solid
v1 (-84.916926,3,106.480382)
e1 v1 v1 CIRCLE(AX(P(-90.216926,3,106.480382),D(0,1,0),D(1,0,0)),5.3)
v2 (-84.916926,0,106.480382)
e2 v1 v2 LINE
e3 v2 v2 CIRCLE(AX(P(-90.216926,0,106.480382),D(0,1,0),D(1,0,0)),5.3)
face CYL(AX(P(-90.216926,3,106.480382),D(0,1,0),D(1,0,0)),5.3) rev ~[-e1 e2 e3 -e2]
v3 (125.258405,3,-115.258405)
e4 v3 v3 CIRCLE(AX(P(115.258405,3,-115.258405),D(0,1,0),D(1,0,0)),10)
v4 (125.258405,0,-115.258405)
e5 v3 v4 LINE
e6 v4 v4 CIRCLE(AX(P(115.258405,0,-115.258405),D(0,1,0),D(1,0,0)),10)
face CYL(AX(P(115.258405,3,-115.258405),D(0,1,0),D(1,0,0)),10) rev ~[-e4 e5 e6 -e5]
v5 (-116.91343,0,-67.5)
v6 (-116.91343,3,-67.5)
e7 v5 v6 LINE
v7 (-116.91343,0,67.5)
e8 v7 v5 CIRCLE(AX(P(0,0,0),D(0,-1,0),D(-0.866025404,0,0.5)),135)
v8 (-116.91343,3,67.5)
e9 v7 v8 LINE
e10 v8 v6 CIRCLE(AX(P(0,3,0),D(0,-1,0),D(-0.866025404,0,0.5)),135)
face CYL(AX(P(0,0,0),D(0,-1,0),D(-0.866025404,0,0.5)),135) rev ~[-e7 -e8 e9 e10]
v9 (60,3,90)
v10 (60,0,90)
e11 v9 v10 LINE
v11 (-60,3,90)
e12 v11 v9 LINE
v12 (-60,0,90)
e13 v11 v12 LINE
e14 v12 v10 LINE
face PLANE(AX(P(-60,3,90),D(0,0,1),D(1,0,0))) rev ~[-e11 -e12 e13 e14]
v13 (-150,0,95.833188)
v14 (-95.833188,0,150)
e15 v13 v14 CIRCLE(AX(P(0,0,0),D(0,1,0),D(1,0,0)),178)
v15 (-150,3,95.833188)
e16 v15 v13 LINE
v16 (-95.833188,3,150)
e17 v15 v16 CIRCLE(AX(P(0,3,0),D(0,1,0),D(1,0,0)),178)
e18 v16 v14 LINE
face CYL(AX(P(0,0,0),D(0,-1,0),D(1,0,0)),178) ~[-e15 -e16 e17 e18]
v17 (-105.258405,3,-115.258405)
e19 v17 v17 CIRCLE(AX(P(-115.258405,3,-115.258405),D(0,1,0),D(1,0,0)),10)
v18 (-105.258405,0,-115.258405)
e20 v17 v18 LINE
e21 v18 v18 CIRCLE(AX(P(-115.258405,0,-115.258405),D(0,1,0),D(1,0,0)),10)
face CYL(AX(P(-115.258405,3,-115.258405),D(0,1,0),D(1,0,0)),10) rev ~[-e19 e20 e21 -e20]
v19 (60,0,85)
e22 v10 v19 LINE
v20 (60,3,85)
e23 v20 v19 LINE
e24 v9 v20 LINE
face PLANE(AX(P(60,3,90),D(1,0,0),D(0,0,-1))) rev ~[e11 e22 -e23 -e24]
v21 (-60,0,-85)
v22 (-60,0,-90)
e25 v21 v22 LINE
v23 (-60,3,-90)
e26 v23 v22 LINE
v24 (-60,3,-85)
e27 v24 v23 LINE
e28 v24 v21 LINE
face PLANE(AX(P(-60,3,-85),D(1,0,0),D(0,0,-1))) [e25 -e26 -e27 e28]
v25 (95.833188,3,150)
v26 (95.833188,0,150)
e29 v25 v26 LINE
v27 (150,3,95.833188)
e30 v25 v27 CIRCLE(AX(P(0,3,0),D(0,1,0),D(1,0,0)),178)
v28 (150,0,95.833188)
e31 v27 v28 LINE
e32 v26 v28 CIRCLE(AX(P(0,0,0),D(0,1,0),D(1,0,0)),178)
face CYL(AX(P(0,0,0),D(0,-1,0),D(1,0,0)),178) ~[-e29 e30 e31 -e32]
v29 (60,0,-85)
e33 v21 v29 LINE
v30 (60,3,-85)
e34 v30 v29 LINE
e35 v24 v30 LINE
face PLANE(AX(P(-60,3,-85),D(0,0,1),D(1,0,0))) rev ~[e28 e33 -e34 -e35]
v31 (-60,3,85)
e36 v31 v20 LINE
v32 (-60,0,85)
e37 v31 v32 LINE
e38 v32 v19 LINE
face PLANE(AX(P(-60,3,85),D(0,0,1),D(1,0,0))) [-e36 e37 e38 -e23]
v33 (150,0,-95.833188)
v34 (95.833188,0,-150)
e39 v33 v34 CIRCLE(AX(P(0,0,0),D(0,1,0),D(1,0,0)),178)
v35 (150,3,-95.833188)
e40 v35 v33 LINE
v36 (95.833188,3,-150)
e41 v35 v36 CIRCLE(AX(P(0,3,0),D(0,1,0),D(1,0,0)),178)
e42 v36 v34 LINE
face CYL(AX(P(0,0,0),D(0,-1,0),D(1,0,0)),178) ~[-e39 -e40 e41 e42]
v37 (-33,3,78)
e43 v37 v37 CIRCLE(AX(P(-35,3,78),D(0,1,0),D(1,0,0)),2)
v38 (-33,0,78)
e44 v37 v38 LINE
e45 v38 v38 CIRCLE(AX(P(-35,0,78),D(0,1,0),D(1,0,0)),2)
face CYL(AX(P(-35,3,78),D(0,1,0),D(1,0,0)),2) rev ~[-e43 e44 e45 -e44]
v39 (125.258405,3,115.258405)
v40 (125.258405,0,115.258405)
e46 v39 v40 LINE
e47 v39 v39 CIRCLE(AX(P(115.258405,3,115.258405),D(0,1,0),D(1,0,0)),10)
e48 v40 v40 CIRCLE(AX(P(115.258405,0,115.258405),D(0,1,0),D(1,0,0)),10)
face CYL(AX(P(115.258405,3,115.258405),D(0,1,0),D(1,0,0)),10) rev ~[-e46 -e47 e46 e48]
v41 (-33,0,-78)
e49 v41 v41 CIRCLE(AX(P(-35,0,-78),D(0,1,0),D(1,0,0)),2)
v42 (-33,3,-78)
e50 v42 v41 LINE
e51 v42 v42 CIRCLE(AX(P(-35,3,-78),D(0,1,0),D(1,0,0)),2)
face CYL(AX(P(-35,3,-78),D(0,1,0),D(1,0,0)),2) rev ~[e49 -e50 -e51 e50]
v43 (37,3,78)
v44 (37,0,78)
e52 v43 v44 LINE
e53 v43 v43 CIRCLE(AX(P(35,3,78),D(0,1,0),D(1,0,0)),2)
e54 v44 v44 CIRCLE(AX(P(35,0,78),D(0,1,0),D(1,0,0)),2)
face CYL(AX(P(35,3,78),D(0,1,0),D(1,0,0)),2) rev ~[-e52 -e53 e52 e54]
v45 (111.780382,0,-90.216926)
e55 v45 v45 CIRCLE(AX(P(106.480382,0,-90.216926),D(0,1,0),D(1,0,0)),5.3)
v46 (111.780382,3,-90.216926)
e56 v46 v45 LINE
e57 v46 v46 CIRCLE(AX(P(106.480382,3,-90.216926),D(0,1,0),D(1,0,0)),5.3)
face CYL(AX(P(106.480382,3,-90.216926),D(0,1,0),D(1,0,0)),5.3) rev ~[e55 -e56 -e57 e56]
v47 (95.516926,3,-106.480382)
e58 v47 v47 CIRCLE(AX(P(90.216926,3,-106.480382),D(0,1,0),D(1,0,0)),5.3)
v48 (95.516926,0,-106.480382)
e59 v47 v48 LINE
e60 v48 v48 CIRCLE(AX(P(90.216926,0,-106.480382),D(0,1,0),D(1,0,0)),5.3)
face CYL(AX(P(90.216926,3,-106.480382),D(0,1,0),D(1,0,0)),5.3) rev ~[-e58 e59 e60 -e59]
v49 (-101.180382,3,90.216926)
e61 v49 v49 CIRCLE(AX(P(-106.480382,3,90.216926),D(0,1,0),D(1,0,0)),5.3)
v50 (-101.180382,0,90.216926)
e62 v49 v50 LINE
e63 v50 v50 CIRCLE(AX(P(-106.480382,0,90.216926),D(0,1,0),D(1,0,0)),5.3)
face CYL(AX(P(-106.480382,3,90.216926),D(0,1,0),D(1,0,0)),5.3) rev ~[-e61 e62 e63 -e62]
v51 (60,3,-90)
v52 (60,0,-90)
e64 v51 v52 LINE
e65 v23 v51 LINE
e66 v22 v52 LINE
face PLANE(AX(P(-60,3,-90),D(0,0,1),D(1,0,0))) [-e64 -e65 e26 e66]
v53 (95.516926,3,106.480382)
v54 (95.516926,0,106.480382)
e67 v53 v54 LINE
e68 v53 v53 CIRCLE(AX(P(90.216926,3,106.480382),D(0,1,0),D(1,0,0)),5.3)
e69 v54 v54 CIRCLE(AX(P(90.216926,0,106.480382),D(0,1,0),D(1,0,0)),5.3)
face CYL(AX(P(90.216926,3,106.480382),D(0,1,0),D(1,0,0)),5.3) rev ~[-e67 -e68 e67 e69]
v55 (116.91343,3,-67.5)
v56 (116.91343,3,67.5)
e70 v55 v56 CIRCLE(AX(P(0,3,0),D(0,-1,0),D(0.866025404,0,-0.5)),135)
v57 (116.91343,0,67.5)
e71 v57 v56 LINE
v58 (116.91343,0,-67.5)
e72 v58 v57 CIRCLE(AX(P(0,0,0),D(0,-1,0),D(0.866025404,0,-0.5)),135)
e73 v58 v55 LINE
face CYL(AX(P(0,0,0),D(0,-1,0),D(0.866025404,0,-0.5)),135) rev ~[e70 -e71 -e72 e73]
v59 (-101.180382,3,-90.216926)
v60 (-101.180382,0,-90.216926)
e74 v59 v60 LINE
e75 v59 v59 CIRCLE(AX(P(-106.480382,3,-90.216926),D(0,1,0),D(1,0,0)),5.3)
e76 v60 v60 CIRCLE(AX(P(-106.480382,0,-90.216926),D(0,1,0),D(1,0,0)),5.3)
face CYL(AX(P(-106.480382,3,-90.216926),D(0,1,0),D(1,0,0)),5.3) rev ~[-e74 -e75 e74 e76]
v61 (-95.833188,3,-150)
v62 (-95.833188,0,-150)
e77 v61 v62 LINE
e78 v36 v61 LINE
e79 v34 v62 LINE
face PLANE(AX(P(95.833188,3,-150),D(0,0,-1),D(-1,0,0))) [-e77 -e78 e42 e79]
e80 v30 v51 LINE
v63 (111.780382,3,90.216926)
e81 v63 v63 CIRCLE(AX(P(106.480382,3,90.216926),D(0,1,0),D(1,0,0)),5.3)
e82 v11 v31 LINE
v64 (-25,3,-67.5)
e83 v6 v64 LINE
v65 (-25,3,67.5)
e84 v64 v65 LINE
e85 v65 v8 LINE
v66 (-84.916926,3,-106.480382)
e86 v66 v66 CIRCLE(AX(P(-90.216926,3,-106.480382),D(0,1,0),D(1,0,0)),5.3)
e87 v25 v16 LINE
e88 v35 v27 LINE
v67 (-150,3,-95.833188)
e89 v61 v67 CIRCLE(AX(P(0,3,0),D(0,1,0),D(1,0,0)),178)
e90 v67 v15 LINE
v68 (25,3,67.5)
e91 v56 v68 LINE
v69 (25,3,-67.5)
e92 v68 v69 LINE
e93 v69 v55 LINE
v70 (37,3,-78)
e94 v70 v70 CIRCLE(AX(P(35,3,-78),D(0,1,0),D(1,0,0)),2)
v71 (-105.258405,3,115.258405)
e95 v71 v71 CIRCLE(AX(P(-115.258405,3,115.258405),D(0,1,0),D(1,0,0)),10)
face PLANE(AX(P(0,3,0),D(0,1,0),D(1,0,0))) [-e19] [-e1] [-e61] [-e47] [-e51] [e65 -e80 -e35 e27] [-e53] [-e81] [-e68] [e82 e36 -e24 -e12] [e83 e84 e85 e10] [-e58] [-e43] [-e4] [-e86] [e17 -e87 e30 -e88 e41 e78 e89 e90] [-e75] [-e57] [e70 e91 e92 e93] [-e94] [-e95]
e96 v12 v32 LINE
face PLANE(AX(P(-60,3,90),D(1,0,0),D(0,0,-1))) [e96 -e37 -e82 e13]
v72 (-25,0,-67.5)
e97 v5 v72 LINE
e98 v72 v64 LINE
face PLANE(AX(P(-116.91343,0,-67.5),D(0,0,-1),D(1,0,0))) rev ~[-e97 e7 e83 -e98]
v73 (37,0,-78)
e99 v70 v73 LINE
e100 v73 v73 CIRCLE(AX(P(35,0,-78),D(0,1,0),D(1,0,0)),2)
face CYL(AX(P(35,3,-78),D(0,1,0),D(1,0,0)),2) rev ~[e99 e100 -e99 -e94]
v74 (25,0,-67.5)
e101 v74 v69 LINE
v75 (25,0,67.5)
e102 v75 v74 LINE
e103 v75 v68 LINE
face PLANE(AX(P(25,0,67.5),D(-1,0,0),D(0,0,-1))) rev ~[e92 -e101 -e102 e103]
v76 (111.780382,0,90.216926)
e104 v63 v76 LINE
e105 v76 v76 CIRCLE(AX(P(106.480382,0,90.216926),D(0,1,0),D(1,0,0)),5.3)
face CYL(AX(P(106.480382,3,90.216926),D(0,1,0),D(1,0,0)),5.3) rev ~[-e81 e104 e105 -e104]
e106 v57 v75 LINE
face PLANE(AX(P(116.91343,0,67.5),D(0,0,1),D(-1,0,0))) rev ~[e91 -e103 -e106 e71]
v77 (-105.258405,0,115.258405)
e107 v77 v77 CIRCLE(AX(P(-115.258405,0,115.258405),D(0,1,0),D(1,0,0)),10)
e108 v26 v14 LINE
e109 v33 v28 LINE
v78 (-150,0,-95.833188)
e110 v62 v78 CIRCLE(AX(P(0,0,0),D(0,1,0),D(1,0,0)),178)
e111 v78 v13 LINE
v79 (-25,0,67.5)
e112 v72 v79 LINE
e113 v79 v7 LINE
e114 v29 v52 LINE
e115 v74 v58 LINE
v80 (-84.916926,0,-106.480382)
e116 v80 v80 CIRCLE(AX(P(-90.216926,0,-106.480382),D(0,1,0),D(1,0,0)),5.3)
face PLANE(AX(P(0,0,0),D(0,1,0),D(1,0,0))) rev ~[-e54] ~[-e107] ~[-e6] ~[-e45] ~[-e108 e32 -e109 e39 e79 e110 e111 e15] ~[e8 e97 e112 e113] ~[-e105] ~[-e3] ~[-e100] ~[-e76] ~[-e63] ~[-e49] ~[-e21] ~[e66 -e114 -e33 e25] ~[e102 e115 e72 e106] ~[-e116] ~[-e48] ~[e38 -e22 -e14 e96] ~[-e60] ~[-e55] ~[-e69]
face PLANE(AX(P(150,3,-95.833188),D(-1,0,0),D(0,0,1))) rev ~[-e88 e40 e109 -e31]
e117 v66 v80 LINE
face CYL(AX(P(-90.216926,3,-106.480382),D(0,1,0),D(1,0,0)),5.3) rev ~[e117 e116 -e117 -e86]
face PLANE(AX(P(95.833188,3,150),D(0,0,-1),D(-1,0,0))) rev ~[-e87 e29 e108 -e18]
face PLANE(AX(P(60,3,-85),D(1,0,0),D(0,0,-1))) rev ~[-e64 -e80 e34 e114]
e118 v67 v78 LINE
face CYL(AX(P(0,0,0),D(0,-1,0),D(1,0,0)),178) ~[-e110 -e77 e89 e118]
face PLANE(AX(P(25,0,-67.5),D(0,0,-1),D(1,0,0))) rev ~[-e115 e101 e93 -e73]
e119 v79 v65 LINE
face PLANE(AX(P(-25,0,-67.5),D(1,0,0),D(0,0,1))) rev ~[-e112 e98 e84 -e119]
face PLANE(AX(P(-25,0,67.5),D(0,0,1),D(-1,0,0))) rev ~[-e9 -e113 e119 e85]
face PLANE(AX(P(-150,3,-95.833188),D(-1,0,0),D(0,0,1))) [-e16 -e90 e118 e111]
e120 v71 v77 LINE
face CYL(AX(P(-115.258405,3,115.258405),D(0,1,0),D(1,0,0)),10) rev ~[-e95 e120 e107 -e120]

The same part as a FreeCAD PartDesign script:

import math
import FreeCAD as App
import Part
import Sketcher

V = App.Vector
Q = App.Units.Quantity

doc = App.newDocument("Part")
params = doc.addObject("Spreadsheet::Sheet", "Params")
for row, (alias, value) in enumerate([
    ("sketch1_diameter", "356 mm"),
    ("sketch1_radius", "135 mm"),
    ("sketch1_height", "135 mm"),
    ("pad1_length", "3 mm"),
    ("sketch2_diameter", "20 mm"),
    ("sketch2_diameter2", "10.6 mm"),
    ("pocket1_length", "10 mm"),
    ("sketch3_radius", "178 mm"),
    ("pocket2_length", "10 mm"),
    ("sketch4_diameter", "4 mm"),
    ("sketch4_width", "120 mm"),
    ("sketch4_height", "5 mm"),
    ("pocket3_length", "10 mm"),
], start=1):
    params.set(f"A{row}", alias)
    params.set(f"B{row}", "=" + value)
    params.setAlias(f"B{row}", alias)

body = doc.addObject("PartDesign::Body", "Body")

# Sketch on XZ plane
sketch1 = doc.addObject("Sketcher::SketchObject", "Sketch")
body.addObject(sketch1)
sketch1.AttachmentSupport = (doc.XZ_Plane, [""])
sketch1.MapMode = "FlatFace"
sketch1.addGeometry(Part.Circle(V(0, 0, 0), V(0, 0, 1), 178), False)
sketch1.addGeometry(Part.LineSegment(V(-25, -68, 0), V(-25, 68, 0)), False)
sketch1.addGeometry(Part.LineSegment(V(-25, 68, 0), V(-117, 68, 0)), False)
sketch1.addGeometry(Part.ArcOfCircle(Part.Circle(V(0, 0, 0), V(0, 0, 1), 135), math.radians(150), math.radians(210)), False)
sketch1.addGeometry(Part.LineSegment(V(-117, -68, 0), V(-25, -68, 0)), False)
sketch1.addGeometry(Part.LineSegment(V(25, 68, 0), V(25, -68, 0)), False)
sketch1.addGeometry(Part.LineSegment(V(25, -68, 0), V(117, -68, 0)), False)
sketch1.addGeometry(Part.ArcOfCircle(Part.Circle(V(0, 0, 0), V(0, 0, 1), 135), math.radians(-30), math.radians(30)), False)
sketch1.addGeometry(Part.LineSegment(V(117, 68, 0), V(25, 68, 0)), False)
sketch1.addConstraint(Sketcher.Constraint("Coincident", 1, 2, 2, 1))
sketch1.addConstraint(Sketcher.Constraint("Coincident", 2, 2, 3, 1))
sketch1.addConstraint(Sketcher.Constraint("Coincident", 3, 2, 4, 1))
sketch1.addConstraint(Sketcher.Constraint("Coincident", 4, 2, 1, 1))
sketch1.addConstraint(Sketcher.Constraint("Coincident", 5, 2, 6, 1))
sketch1.addConstraint(Sketcher.Constraint("Coincident", 6, 2, 7, 1))
sketch1.addConstraint(Sketcher.Constraint("Coincident", 7, 2, 8, 1))
sketch1.addConstraint(Sketcher.Constraint("Coincident", 8, 2, 5, 1))
sketch1.addConstraint(Sketcher.Constraint("Vertical", 1))
sketch1.addConstraint(Sketcher.Constraint("Horizontal", 2))
sketch1.addConstraint(Sketcher.Constraint("Horizontal", 4))
sketch1.addConstraint(Sketcher.Constraint("Vertical", 5))
sketch1.addConstraint(Sketcher.Constraint("Horizontal", 6))
sketch1.addConstraint(Sketcher.Constraint("Horizontal", 8))
sketch1.addConstraint(Sketcher.Constraint("Coincident", 0, 3, -1, 1))
sketch1.addConstraint(Sketcher.Constraint("Coincident", 3, 3, -1, 1))
sketch1.addConstraint(Sketcher.Constraint("Coincident", 7, 3, -1, 1))
sketch1.addConstraint(Sketcher.Constraint("Equal", 3, 7))
sketch1.addConstraint(Sketcher.Constraint("Symmetric", 1, 2, 5, 2, -1, 1))
sketch1.addConstraint(Sketcher.Constraint("Horizontal", 4, 2, 5, 2))
sketch1.addConstraint(Sketcher.Constraint("Horizontal", 2, 2, 7, 2))
sketch1.addConstraint(Sketcher.Constraint("Diameter", 0, Q("356 mm")))
sketch1.addConstraint(Sketcher.Constraint("Radius", 3, Q("135 mm")))
sketch1.addConstraint(Sketcher.Constraint("DistanceY", 1, 1, 1, 2, Q("135 mm")))
sketch1.addConstraint(Sketcher.Constraint("DistanceX", 1, 2, -1, 1, Q("25 mm")))
sketch1.setExpression("Constraints[21]", "Params.sketch1_diameter")
sketch1.setExpression("Constraints[22]", "Params.sketch1_radius")
sketch1.setExpression("Constraints[23]", "Params.sketch1_height")
pad1 = doc.addObject("PartDesign::Pad", "Pad")
body.addObject(pad1)
pad1.Profile = sketch1
pad1.setExpression("Length", "Params.pad1_length")
pad1.Reversed = True

# Sketch on XZ plane
sketch2 = doc.addObject("Sketcher::SketchObject", "Sketch001")
body.addObject(sketch2)
sketch2.AttachmentSupport = (doc.XZ_Plane, [""])
sketch2.MapMode = "FlatFace"
sketch2.AttachmentOffset = App.Placement(V(0, 0, -3), App.Rotation())
sketch2.addGeometry(Part.Circle(V(115, -115, 0), V(0, 0, 1), 10), False)
sketch2.addGeometry(Part.Circle(V(115, 115, 0), V(0, 0, 1), 10), False)
sketch2.addGeometry(Part.Circle(V(-115, 115, 0), V(0, 0, 1), 10), False)
sketch2.addGeometry(Part.Circle(V(-115, -115, 0), V(0, 0, 1), 10), False)
sketch2.addGeometry(Part.Circle(V(-90, 106, 0), V(0, 0, 1), 5), False)
sketch2.addGeometry(Part.Circle(V(-106, 90, 0), V(0, 0, 1), 5), False)
sketch2.addGeometry(Part.Circle(V(-106, -90, 0), V(0, 0, 1), 5), False)
sketch2.addGeometry(Part.Circle(V(-90, -106, 0), V(0, 0, 1), 5), False)
sketch2.addGeometry(Part.Circle(V(90, -106, 0), V(0, 0, 1), 5), False)
sketch2.addGeometry(Part.Circle(V(106, -90, 0), V(0, 0, 1), 5), False)
sketch2.addGeometry(Part.Circle(V(106, 90, 0), V(0, 0, 1), 5), False)
sketch2.addGeometry(Part.Circle(V(90, 106, 0), V(0, 0, 1), 5), False)
sketch2.addConstraint(Sketcher.Constraint("Equal", 0, 1))
sketch2.addConstraint(Sketcher.Constraint("Equal", 1, 2))
sketch2.addConstraint(Sketcher.Constraint("Equal", 2, 3))
sketch2.addConstraint(Sketcher.Constraint("Equal", 4, 5))
sketch2.addConstraint(Sketcher.Constraint("Equal", 5, 6))
sketch2.addConstraint(Sketcher.Constraint("Equal", 6, 7))
sketch2.addConstraint(Sketcher.Constraint("Equal", 7, 8))
sketch2.addConstraint(Sketcher.Constraint("Equal", 8, 9))
sketch2.addConstraint(Sketcher.Constraint("Equal", 9, 10))
sketch2.addConstraint(Sketcher.Constraint("Equal", 10, 11))
sketch2.addConstraint(Sketcher.Constraint("Symmetric", 0, 3, 2, 3, -1, 1))
sketch2.addConstraint(Sketcher.Constraint("Symmetric", 1, 3, 3, 3, -1, 1))
sketch2.addConstraint(Sketcher.Constraint("Symmetric", 4, 3, 8, 3, -1, 1))
sketch2.addConstraint(Sketcher.Constraint("Symmetric", 5, 3, 9, 3, -1, 1))
sketch2.addConstraint(Sketcher.Constraint("Symmetric", 6, 3, 10, 3, -1, 1))
sketch2.addConstraint(Sketcher.Constraint("Symmetric", 7, 3, 11, 3, -1, 1))
sketch2.addConstraint(Sketcher.Constraint("Symmetric", 1, 3, 2, 3, -2))
sketch2.addConstraint(Sketcher.Constraint("Symmetric", 7, 3, 8, 3, -2))
sketch2.addConstraint(Sketcher.Constraint("Symmetric", 6, 3, 9, 3, -2))
sketch2.addConstraint(Sketcher.Constraint("Diameter", 0, Q("20 mm")))
sketch2.addConstraint(Sketcher.Constraint("Diameter", 4, Q("10.6 mm")))
sketch2.addConstraint(Sketcher.Constraint("DistanceY", -1, 1, 4, 3, Q("106.480382 mm")))
sketch2.addConstraint(Sketcher.Constraint("DistanceX", 5, 3, -1, 1, Q("106.480382 mm")))
sketch2.addConstraint(Sketcher.Constraint("DistanceY", 0, 3, 1, 3, Q("230.516811 mm")))
sketch2.addConstraint(Sketcher.Constraint("DistanceX", 2, 3, 1, 3, Q("230.516811 mm")))
sketch2.addConstraint(Sketcher.Constraint("DistanceX", 2, 3, 4, 3, Q("25.04148 mm")))
sketch2.addConstraint(Sketcher.Constraint("DistanceY", 5, 3, 2, 3, Q("25.04148 mm")))
sketch2.setExpression("Constraints[19]", "Params.sketch2_diameter")
sketch2.setExpression("Constraints[20]", "Params.sketch2_diameter2")
pocket1 = doc.addObject("PartDesign::Pocket", "Pocket")
body.addObject(pocket1)
pocket1.Profile = sketch2
pocket1.setExpression("Length", "Params.pocket1_length")
pocket1.Reversed = True

# Sketch on XZ plane
sketch3 = doc.addObject("Sketcher::SketchObject", "Sketch002")
body.addObject(sketch3)
sketch3.AttachmentSupport = (doc.XZ_Plane, [""])
sketch3.MapMode = "FlatFace"
sketch3.AttachmentOffset = App.Placement(V(0, 0, -3), App.Rotation())
sketch3.addGeometry(Part.LineSegment(V(-96, -150, 0), V(96, -150, 0)), False)
sketch3.addGeometry(Part.ArcOfCircle(Part.Circle(V(0, 0, 0), V(0, 0, 1), 178), math.radians(-123), math.radians(-57)), False)
sketch3.addGeometry(Part.LineSegment(V(150, -96, 0), V(150, 96, 0)), False)
sketch3.addGeometry(Part.ArcOfCircle(Part.Circle(V(0, 0, 0), V(0, 0, 1), 178), math.radians(-33), math.radians(33)), False)
sketch3.addGeometry(Part.LineSegment(V(96, 150, 0), V(-96, 150, 0)), False)
sketch3.addGeometry(Part.ArcOfCircle(Part.Circle(V(0, 0, 0), V(0, 0, 1), 178), math.radians(57), math.radians(123)), False)
sketch3.addGeometry(Part.ArcOfCircle(Part.Circle(V(0, 0, 0), V(0, 0, 1), 178), math.radians(147), math.radians(213)), False)
sketch3.addGeometry(Part.LineSegment(V(-150, 96, 0), V(-150, -96, 0)), False)
sketch3.addConstraint(Sketcher.Constraint("Coincident", 0, 1, 1, 1))
sketch3.addConstraint(Sketcher.Constraint("Coincident", 1, 2, 0, 2))
sketch3.addConstraint(Sketcher.Constraint("Coincident", 2, 1, 3, 1))
sketch3.addConstraint(Sketcher.Constraint("Coincident", 3, 2, 2, 2))
sketch3.addConstraint(Sketcher.Constraint("Coincident", 4, 1, 5, 1))
sketch3.addConstraint(Sketcher.Constraint("Coincident", 5, 2, 4, 2))
sketch3.addConstraint(Sketcher.Constraint("Coincident", 6, 1, 7, 1))
sketch3.addConstraint(Sketcher.Constraint("Coincident", 7, 2, 6, 2))
sketch3.addConstraint(Sketcher.Constraint("Horizontal", 0))
sketch3.addConstraint(Sketcher.Constraint("Vertical", 2))
sketch3.addConstraint(Sketcher.Constraint("Horizontal", 4))
sketch3.addConstraint(Sketcher.Constraint("Vertical", 7))
sketch3.addConstraint(Sketcher.Constraint("Coincident", 1, 3, -1, 1))
sketch3.addConstraint(Sketcher.Constraint("Coincident", 3, 3, -1, 1))
sketch3.addConstraint(Sketcher.Constraint("Coincident", 5, 3, -1, 1))
sketch3.addConstraint(Sketcher.Constraint("Coincident", 6, 3, -1, 1))
sketch3.addConstraint(Sketcher.Constraint("Equal", 1, 3))
sketch3.addConstraint(Sketcher.Constraint("Equal", 3, 5))
sketch3.addConstraint(Sketcher.Constraint("Equal", 5, 6))
sketch3.addConstraint(Sketcher.Constraint("Horizontal", 3, 2, 6, 1))
sketch3.addConstraint(Sketcher.Constraint("Vertical", 1, 2, 4, 1))
sketch3.addConstraint(Sketcher.Constraint("Equal", 4, 2))
sketch3.addConstraint(Sketcher.Constraint("Radius", 1, Q("178 mm")))
sketch3.addConstraint(Sketcher.Constraint("DistanceY", 0, 1, -1, 1, Q("150 mm")))
sketch3.setExpression("Constraints[22]", "Params.sketch3_radius")
pocket2 = doc.addObject("PartDesign::Pocket", "Pocket001")
body.addObject(pocket2)
pocket2.Profile = sketch3
pocket2.setExpression("Length", "Params.pocket2_length")
pocket2.Reversed = True

# Sketch on XZ plane
sketch4 = doc.addObject("Sketcher::SketchObject", "Sketch003")
body.addObject(sketch4)
sketch4.AttachmentSupport = (doc.XZ_Plane, [""])
sketch4.MapMode = "FlatFace"
sketch4.AttachmentOffset = App.Placement(V(0, 0, -3), App.Rotation())
sketch4.addGeometry(Part.Circle(V(35, 78, 0), V(0, 0, 1), 2), False)
sketch4.addGeometry(Part.Circle(V(-35, 78, 0), V(0, 0, 1), 2), False)
sketch4.addGeometry(Part.Circle(V(-35, -78, 0), V(0, 0, 1), 2), False)
sketch4.addGeometry(Part.Circle(V(35, -78, 0), V(0, 0, 1), 2), False)
sketch4.addGeometry(Part.LineSegment(V(-60, 85, 0), V(-60, 90, 0)), False)
sketch4.addGeometry(Part.LineSegment(V(-60, 90, 0), V(60, 90, 0)), False)
sketch4.addGeometry(Part.LineSegment(V(60, 90, 0), V(60, 85, 0)), False)
sketch4.addGeometry(Part.LineSegment(V(60, 85, 0), V(-60, 85, 0)), False)
sketch4.addGeometry(Part.LineSegment(V(-60, -90, 0), V(-60, -85, 0)), False)
sketch4.addGeometry(Part.LineSegment(V(-60, -85, 0), V(60, -85, 0)), False)
sketch4.addGeometry(Part.LineSegment(V(60, -85, 0), V(60, -90, 0)), False)
sketch4.addGeometry(Part.LineSegment(V(60, -90, 0), V(-60, -90, 0)), False)
sketch4.addConstraint(Sketcher.Constraint("Coincident", 4, 2, 5, 1))
sketch4.addConstraint(Sketcher.Constraint("Coincident", 5, 2, 6, 1))
sketch4.addConstraint(Sketcher.Constraint("Coincident", 6, 2, 7, 1))
sketch4.addConstraint(Sketcher.Constraint("Coincident", 7, 2, 4, 1))
sketch4.addConstraint(Sketcher.Constraint("Coincident", 8, 2, 9, 1))
sketch4.addConstraint(Sketcher.Constraint("Coincident", 9, 2, 10, 1))
sketch4.addConstraint(Sketcher.Constraint("Coincident", 10, 2, 11, 1))
sketch4.addConstraint(Sketcher.Constraint("Coincident", 11, 2, 8, 1))
sketch4.addConstraint(Sketcher.Constraint("Vertical", 4))
sketch4.addConstraint(Sketcher.Constraint("Horizontal", 5))
sketch4.addConstraint(Sketcher.Constraint("Vertical", 6))
sketch4.addConstraint(Sketcher.Constraint("Horizontal", 7))
sketch4.addConstraint(Sketcher.Constraint("Vertical", 8))
sketch4.addConstraint(Sketcher.Constraint("Horizontal", 9))
sketch4.addConstraint(Sketcher.Constraint("Vertical", 10))
sketch4.addConstraint(Sketcher.Constraint("Horizontal", 11))
sketch4.addConstraint(Sketcher.Constraint("Equal", 0, 1))
sketch4.addConstraint(Sketcher.Constraint("Equal", 1, 2))
sketch4.addConstraint(Sketcher.Constraint("Equal", 2, 3))
sketch4.addConstraint(Sketcher.Constraint("Symmetric", 0, 3, 2, 3, -1, 1))
sketch4.addConstraint(Sketcher.Constraint("Symmetric", 1, 3, 3, 3, -1, 1))
sketch4.addConstraint(Sketcher.Constraint("Symmetric", 6, 2, 8, 2, -1, 1))
sketch4.addConstraint(Sketcher.Constraint("Symmetric", 4, 2, 10, 2, -1, 1))
sketch4.addConstraint(Sketcher.Constraint("Symmetric", 0, 3, 1, 3, -2))
sketch4.addConstraint(Sketcher.Constraint("Vertical", 7, 2, 8, 2))
sketch4.addConstraint(Sketcher.Constraint("Diameter", 0, Q("4 mm")))
sketch4.addConstraint(Sketcher.Constraint("DistanceX", 5, 1, 5, 2, Q("120 mm")))
sketch4.addConstraint(Sketcher.Constraint("DistanceY", 4, 1, 4, 2, Q("5 mm")))
sketch4.addConstraint(Sketcher.Constraint("DistanceX", -1, 1, 0, 3, Q("35 mm")))
sketch4.addConstraint(Sketcher.Constraint("DistanceY", -1, 1, 0, 3, Q("78 mm")))
sketch4.addConstraint(Sketcher.Constraint("DistanceY", -1, 1, 4, 2, Q("90 mm")))
sketch4.setExpression("Constraints[25]", "Params.sketch4_diameter")
sketch4.setExpression("Constraints[26]", "Params.sketch4_width")
sketch4.setExpression("Constraints[27]", "Params.sketch4_height")
pocket3 = doc.addObject("PartDesign::Pocket", "Pocket002")
body.addObject(pocket3)
pocket3.Profile = sketch4
pocket3.setExpression("Length", "Params.pocket3_length")
pocket3.Reversed = True

doc.recompute()
